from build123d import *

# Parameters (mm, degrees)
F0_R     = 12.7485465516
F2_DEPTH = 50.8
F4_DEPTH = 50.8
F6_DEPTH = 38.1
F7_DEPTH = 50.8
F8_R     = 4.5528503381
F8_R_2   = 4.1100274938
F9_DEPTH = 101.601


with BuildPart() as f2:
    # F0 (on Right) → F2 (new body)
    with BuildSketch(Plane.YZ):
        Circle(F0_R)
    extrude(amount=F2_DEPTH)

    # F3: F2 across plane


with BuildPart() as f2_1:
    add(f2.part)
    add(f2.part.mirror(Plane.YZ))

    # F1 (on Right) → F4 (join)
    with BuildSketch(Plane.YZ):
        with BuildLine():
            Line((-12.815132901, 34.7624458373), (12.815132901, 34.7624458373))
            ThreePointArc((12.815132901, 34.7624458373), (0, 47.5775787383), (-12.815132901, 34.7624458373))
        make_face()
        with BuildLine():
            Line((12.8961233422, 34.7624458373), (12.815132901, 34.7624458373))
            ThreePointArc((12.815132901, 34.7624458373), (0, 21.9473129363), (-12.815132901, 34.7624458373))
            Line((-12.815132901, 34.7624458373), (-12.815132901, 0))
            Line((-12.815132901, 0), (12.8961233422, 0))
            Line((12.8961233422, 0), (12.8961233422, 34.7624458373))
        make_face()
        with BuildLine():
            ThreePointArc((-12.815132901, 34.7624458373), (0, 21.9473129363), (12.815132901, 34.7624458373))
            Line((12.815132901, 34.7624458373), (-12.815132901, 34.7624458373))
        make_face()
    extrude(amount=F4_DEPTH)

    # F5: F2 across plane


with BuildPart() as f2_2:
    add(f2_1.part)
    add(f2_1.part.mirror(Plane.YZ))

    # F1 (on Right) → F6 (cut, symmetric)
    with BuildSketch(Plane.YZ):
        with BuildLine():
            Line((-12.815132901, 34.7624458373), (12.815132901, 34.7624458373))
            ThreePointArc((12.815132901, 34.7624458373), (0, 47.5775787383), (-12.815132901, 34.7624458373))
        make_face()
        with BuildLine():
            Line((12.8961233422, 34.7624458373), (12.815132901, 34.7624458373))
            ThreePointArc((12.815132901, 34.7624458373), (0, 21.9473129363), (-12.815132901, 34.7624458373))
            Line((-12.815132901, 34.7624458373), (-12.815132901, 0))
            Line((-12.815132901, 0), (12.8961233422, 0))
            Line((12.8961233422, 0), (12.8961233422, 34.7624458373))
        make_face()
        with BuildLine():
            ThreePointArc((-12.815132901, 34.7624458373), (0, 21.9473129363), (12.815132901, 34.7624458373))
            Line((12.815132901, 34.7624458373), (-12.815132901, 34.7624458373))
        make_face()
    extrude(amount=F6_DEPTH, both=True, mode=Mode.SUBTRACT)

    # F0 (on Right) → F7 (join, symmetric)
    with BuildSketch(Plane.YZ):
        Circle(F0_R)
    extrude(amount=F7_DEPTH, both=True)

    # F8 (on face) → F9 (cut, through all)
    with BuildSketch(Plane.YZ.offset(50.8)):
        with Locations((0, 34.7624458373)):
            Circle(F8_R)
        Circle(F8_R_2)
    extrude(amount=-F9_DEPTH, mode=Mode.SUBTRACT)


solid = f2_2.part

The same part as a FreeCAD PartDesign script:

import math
import FreeCAD as App
import Part
import Sketcher

V = App.Vector

doc = App.newDocument("Part")
params = doc.addObject("Spreadsheet::Sheet", "Params")
for row, (alias, value) in enumerate([
    ("pad1_length", "2 in"),
    ("pad2_length", "2 in"),
    ("pocket1_length", "3 in"),
    ("pad3_length", "4 in"),
], start=1):
    params.set(f"A{row}", alias)
    params.set(f"B{row}", "=" + value)
    params.setAlias(f"B{row}", alias)

body = doc.addObject("PartDesign::Body", "Body")

sketch1 = body.newObject("Sketcher::SketchObject", "Sketch")
sketch1.AttachmentSupport = (doc.getObject("YZ_Plane"), [""])
sketch1.MapMode = "FlatFace"
sketch1.addGeometry(Part.Circle(V(0, 0, 0), V(0, 0, 1), 13), False)
sketch1.addConstraint(Sketcher.Constraint("Coincident", 0, 3, -1, 1))
sketch1.addConstraint(Sketcher.Constraint("Diameter", 0, 25.497093))
pad1 = body.newObject("PartDesign::Pad", "Pad")
pad1.Profile = sketch1
pad1.setExpression("Length", "Params.pad1_length")
body2 = doc.addObject("PartDesign::Body", "Body001")
doc.recompute()

body2.BaseFeature = body
doc.recompute()

mirroring = doc.addObject("Part::Mirroring", "Mirroring")
mirroring.Source = body
mirroring.Base = V(0, 0, 0)
mirroring.Normal = V(1, 0, 0)
body3 = doc.addObject("PartDesign::Body", "Body002")
body3.BaseFeature = mirroring
boolean = body2.newObject("PartDesign::Boolean", "Boolean")
boolean.Type = "Fuse"
boolean.addObjects([body3])
doc.recompute()

sketch2 = body2.newObject("Sketcher::SketchObject", "Sketch001")
sketch2.AttachmentSupport = (doc.getObject("YZ_Plane001"), [""])
sketch2.MapMode = "FlatFace"
sketch2.addGeometry(Part.ArcOfCircle(Part.Circle(V(0, 34.76, 0), V(0, 0, 1), 12.82), math.radians(0), math.radians(180)), False)
sketch2.addGeometry(Part.LineSegment(V(-12.82, 34.76, 0), V(-12.82, 0, 0)), False)
sketch2.addGeometry(Part.LineSegment(V(-12.82, 0, 0), V(12.9, 0, 0)), False)
sketch2.addGeometry(Part.LineSegment(V(12.9, 0, 0), V(12.9, 34.76, 0)), False)
sketch2.addGeometry(Part.LineSegment(V(12.9, 34.76, 0), V(12.82, 34.76, 0)), False)
sketch2.addConstraint(Sketcher.Constraint("Tangent", 0, 2, 1, 1))
sketch2.addConstraint(Sketcher.Constraint("Coincident", 1, 2, 2, 1))
sketch2.addConstraint(Sketcher.Constraint("Coincident", 2, 2, 3, 1))
sketch2.addConstraint(Sketcher.Constraint("Coincident", 3, 2, 4, 1))
sketch2.addConstraint(Sketcher.Constraint("Coincident", 4, 2, 0, 1))
sketch2.addConstraint(Sketcher.Constraint("Vertical", 1))
sketch2.addConstraint(Sketcher.Constraint("Horizontal", 2))
sketch2.addConstraint(Sketcher.Constraint("Vertical", 3))
sketch2.addConstraint(Sketcher.Constraint("Horizontal", 4))
sketch2.addConstraint(Sketcher.Constraint("Symmetric", 0, 2, 4, 2, -2))
sketch2.addConstraint(Sketcher.Constraint("PointOnObject", 1, 2, -1))
sketch2.addConstraint(Sketcher.Constraint("Radius", 0, 12.815133))
sketch2.addConstraint(Sketcher.Constraint("DistanceX", 4, 2, 4, 1, 0.08099))
sketch2.addConstraint(Sketcher.Constraint("DistanceY", 1, 2, 1, 1, 34.762446))
pad2 = body2.newObject("PartDesign::Pad", "Pad001")
pad2.Profile = sketch2
pad2.setExpression("Length", "Params.pad2_length")
body4 = doc.addObject("PartDesign::Body", "Body003")
doc.recompute()

body4.BaseFeature = body2
doc.recompute()

mirroring2 = doc.addObject("Part::Mirroring", "Mirroring001")
mirroring2.Source = body2
mirroring2.Base = V(0, 0, 0)
mirroring2.Normal = V(1, 0, 0)
body5 = doc.addObject("PartDesign::Body", "Body004")
body5.BaseFeature = mirroring2
boolean2 = body4.newObject("PartDesign::Boolean", "Boolean001")
boolean2.Type = "Fuse"
boolean2.addObjects([body5])
doc.recompute()

sketch3 = body4.newObject("Sketcher::SketchObject", "Sketch002")
sketch3.AttachmentSupport = (doc.getObject("YZ_Plane003"), [""])
sketch3.MapMode = "FlatFace"
sketch3.addGeometry(Part.ArcOfCircle(Part.Circle(V(0, 34.76, 0), V(0, 0, 1), 12.82), math.radians(0), math.radians(180)), False)
sketch3.addGeometry(Part.LineSegment(V(-12.82, 34.76, 0), V(-12.82, 0, 0)), False)
sketch3.addGeometry(Part.LineSegment(V(-12.82, 0, 0), V(12.9, 0, 0)), False)
sketch3.addGeometry(Part.LineSegment(V(12.9, 0, 0), V(12.9, 34.76, 0)), False)
sketch3.addGeometry(Part.LineSegment(V(12.9, 34.76, 0), V(12.82, 34.76, 0)), False)
sketch3.addConstraint(Sketcher.Constraint("Tangent", 0, 2, 1, 1))
sketch3.addConstraint(Sketcher.Constraint("Coincident", 1, 2, 2, 1))
sketch3.addConstraint(Sketcher.Constraint("Coincident", 2, 2, 3, 1))
sketch3.addConstraint(Sketcher.Constraint("Coincident", 3, 2, 4, 1))
sketch3.addConstraint(Sketcher.Constraint("Coincident", 4, 2, 0, 1))
sketch3.addConstraint(Sketcher.Constraint("Vertical", 1))
sketch3.addConstraint(Sketcher.Constraint("Horizontal", 2))
sketch3.addConstraint(Sketcher.Constraint("Vertical", 3))
sketch3.addConstraint(Sketcher.Constraint("Horizontal", 4))
sketch3.addConstraint(Sketcher.Constraint("Symmetric", 0, 2, 4, 2, -2))
sketch3.addConstraint(Sketcher.Constraint("PointOnObject", 1, 2, -1))
sketch3.addConstraint(Sketcher.Constraint("Radius", 0, 12.815133))
sketch3.addConstraint(Sketcher.Constraint("DistanceX", 4, 2, 4, 1, 0.08099))
sketch3.addConstraint(Sketcher.Constraint("DistanceY", 1, 2, 1, 1, 34.762446))
pocket1 = body4.newObject("PartDesign::Pocket", "Pocket")
pocket1.Profile = sketch3
pocket1.setExpression("Length", "Params.pocket1_length")
pocket1.Midplane = True

sketch4 = body4.newObject("Sketcher::SketchObject", "Sketch003")
sketch4.AttachmentSupport = (doc.getObject("YZ_Plane003"), [""])
sketch4.MapMode = "FlatFace"
sketch4.addGeometry(Part.Circle(V(0, 0, 0), V(0, 0, 1), 13), False)
sketch4.addConstraint(Sketcher.Constraint("Coincident", 0, 3, -1, 1))
sketch4.addConstraint(Sketcher.Constraint("Diameter", 0, 25.497093))
pad3 = body4.newObject("PartDesign::Pad", "Pad002")
pad3.Profile = sketch4
pad3.setExpression("Length", "Params.pad3_length")
pad3.Midplane = True

sketch5 = body4.newObject("Sketcher::SketchObject", "Sketch004")
sketch5.AttachmentSupport = (doc.getObject("YZ_Plane003"), [""])
sketch5.MapMode = "FlatFace"
sketch5.AttachmentOffset = App.Placement(V(0, 0, 2 * 25.4), App.Rotation())
sketch5.addGeometry(Part.Circle(V(0, 34.8, 0), V(0, 0, 1), 4.6), False)
sketch5.addGeometry(Part.Circle(V(0, 0, 0), V(0, 0, 1), 4.1), False)
sketch5.addConstraint(Sketcher.Constraint("Coincident", 1, 3, -1, 1))
sketch5.addConstraint(Sketcher.Constraint("PointOnObject", 0, 3, -2))
sketch5.addConstraint(Sketcher.Constraint("Diameter", 0, 9.105701))
sketch5.addConstraint(Sketcher.Constraint("Diameter", 1, 8.220055))
sketch5.addConstraint(Sketcher.Constraint("DistanceY", -1, 1, 0, 3, 34.762446))
pocket2 = body4.newObject("PartDesign::Pocket", "Pocket001")
pocket2.Profile = sketch5
pocket2.Type = "ThroughAll"
mirroring.Visibility = False
mirroring2.Visibility = False

doc.recompute()
